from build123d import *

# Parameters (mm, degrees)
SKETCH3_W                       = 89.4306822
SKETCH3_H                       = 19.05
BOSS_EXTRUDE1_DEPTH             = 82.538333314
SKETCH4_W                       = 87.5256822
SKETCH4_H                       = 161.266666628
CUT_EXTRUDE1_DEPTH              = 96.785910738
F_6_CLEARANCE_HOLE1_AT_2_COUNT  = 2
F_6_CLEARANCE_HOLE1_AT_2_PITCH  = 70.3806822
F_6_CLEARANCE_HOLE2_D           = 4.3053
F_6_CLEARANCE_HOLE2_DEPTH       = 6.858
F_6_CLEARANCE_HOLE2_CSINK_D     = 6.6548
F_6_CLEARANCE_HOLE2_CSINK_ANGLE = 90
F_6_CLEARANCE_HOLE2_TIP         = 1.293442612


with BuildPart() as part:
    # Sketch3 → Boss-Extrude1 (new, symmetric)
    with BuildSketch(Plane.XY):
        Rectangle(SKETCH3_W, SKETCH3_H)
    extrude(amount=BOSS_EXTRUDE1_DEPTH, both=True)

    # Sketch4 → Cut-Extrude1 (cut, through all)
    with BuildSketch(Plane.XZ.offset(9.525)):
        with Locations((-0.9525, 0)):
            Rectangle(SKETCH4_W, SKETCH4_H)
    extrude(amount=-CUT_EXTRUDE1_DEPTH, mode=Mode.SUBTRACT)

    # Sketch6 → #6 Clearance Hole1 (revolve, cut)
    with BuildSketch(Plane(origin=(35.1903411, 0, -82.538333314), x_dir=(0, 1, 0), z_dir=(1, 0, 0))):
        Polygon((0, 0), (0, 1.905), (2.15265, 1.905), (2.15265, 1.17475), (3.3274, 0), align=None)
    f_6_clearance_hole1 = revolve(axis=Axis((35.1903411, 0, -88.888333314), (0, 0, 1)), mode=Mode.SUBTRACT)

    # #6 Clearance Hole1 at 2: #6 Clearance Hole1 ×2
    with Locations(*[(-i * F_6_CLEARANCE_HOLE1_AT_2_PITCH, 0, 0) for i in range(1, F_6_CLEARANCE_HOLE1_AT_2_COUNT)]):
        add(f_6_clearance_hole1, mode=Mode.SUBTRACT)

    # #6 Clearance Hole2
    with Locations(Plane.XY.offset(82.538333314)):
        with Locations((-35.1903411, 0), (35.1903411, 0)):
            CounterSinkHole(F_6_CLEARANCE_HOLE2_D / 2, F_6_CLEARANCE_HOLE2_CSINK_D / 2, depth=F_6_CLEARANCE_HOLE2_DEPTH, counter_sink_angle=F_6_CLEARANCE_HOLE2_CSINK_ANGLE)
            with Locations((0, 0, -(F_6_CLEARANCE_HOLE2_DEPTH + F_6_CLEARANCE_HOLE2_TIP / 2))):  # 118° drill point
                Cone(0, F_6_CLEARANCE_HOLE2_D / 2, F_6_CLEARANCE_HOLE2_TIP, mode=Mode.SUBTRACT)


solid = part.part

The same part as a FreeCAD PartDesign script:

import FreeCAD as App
import Part
import Sketcher
Q = App.Units.Quantity

doc = App.newDocument("Part")
body = doc.addObject("PartDesign::Body", "Body")

# Sketch on XY plane
sketch1 = body.newObject("Sketcher::SketchObject", "Sketch")
sketch1.AttachmentSupport = (doc.getObject("XY_Plane"), [""])
sketch1.MapMode = "FlatFace"
sketch1.addGeometry([
    Part.LineSegment(App.Vector(-45, 10, 0), App.Vector(-45, -10, 0)),
    Part.LineSegment(App.Vector(-45, -10, 0), App.Vector(45, -10, 0)),
    Part.LineSegment(App.Vector(45, -10, 0), App.Vector(45, 10, 0)),
    Part.LineSegment(App.Vector(45, 10, 0), App.Vector(-45, 10, 0)),
], False)
sketch1.addConstraint([
    Sketcher.Constraint("Coincident", 0, 2, 1, 1),
    Sketcher.Constraint("Coincident", 1, 2, 2, 1),
    Sketcher.Constraint("Coincident", 2, 2, 3, 1),
    Sketcher.Constraint("Coincident", 3, 2, 0, 1),
    Sketcher.Constraint("Vertical", 0),
    Sketcher.Constraint("Horizontal", 1),
    Sketcher.Constraint("Vertical", 2),
    Sketcher.Constraint("Horizontal", 3),
    Sketcher.Constraint("Symmetric", 0, 2, 2, 2, -1, 1),
    Sketcher.Constraint("DistanceY", 0, 2, 0, 1, Q("0.75 in")),
    Sketcher.Constraint("DistanceX", 1, 1, 1, 2, Q("89.430682 mm")),
])
pad1 = body.newObject("PartDesign::Pad", "Pad")
pad1.Profile = sketch1
pad1.Length = 165.076667
pad1.Midplane = True

# Sketch on XZ plane
sketch2 = body.newObject("Sketcher::SketchObject", "Sketch001")
sketch2.AttachmentSupport = (doc.getObject("XZ_Plane"), [""])
sketch2.MapMode = "FlatFace"
sketch2.AttachmentOffset = App.Placement(App.Vector(0, 0, 0.375 * 25.4), App.Rotation())
sketch2.addGeometry([
    Part.LineSegment(App.Vector(-45, 81, 0), App.Vector(-45, -81, 0)),
    Part.LineSegment(App.Vector(-45, -81, 0), App.Vector(43, -81, 0)),
    Part.LineSegment(App.Vector(43, -81, 0), App.Vector(43, 81, 0)),
    Part.LineSegment(App.Vector(43, 81, 0), App.Vector(-45, 81, 0)),
], False)
sketch2.addConstraint([
    Sketcher.Constraint("Coincident", 0, 2, 1, 1),
    Sketcher.Constraint("Coincident", 1, 2, 2, 1),
    Sketcher.Constraint("Coincident", 2, 2, 3, 1),
    Sketcher.Constraint("Coincident", 3, 2, 0, 1),
    Sketcher.Constraint("Vertical", 0),
    Sketcher.Constraint("Horizontal", 1),
    Sketcher.Constraint("Vertical", 2),
    Sketcher.Constraint("Horizontal", 3),
    Sketcher.Constraint("DistanceX", 1, 1, 1, 2, Q("87.525682 mm")),
    Sketcher.Constraint("DistanceY", 0, 2, 0, 1, Q("161.266667 mm")),
    Sketcher.Constraint("DistanceX", 0, 2, -1, 1, Q("44.715341 mm")),
    Sketcher.Constraint("DistanceY", 0, 2, -1, 1, Q("80.633333 mm")),
])
pocket1 = body.newObject("PartDesign::Pocket", "Pocket")
pocket1.Profile = sketch2
pocket1.Type = "ThroughAll"

# Sketch on YZ plane
sketch3 = body.newObject("Sketcher::SketchObject", "Sketch002")
sketch3.AttachmentSupport = (doc.getObject("YZ_Plane"), [""])
sketch3.MapMode = "FlatFace"
sketch3.AttachmentOffset = App.Placement(App.Vector(0, 0, 35.190341), App.Rotation())
sketch3.addGeometry([
    Part.LineSegment(App.Vector(0, -80.6, 0), App.Vector(0, -82.5, 0)),  # 0
    Part.LineSegment(App.Vector(0, -82.5, 0), App.Vector(3.3, -82.5, 0)),  # 1
    Part.LineSegment(App.Vector(3.3, -82.5, 0), App.Vector(2.2, -81.4, 0)),  # 2
    Part.LineSegment(App.Vector(2.2, -81.4, 0), App.Vector(2.2, -80.6, 0)),  # 3
    Part.LineSegment(App.Vector(2.2, -80.6, 0), App.Vector(0, -80.6, 0)),  # 4
], False)
sketch3.addConstraint([
    Sketcher.Constraint("Coincident", 0, 2, 1, 1),
    Sketcher.Constraint("Coincident", 1, 2, 2, 1),
    Sketcher.Constraint("Coincident", 2, 2, 3, 1),
    Sketcher.Constraint("Coincident", 3, 2, 4, 1),
    Sketcher.Constraint("Coincident", 4, 2, 0, 1),
    Sketcher.Constraint("Vertical", 0),
    Sketcher.Constraint("Horizontal", 1),
    Sketcher.Constraint("Vertical", 3),
    Sketcher.Constraint("Horizontal", 4),
    Sketcher.Constraint("PointOnObject", 0, 2, -2),
    Sketcher.Constraint("Angle", 2, Q("135 deg")),
    Sketcher.Constraint("DistanceX", 1, 1, 1, 2, Q("0.131 in")),
    Sketcher.Constraint("DistanceY", 0, 2, 0, 1, Q("0.075 in")),
    Sketcher.Constraint("DistanceX", 4, 2, 4, 1, Q("2.15265 mm")),
    Sketcher.Constraint("DistanceY", 0, 2, -1, 1, Q("82.538333 mm")),
])
groove = body.newObject("PartDesign::Groove", "Groove")
groove.Profile = sketch3
groove.ReferenceAxis = (sketch3, ["V_Axis"])
groove.Angle = 360
doc.recompute()

linearpattern = body.newObject("PartDesign::LinearPattern", "LinearPattern")
linearpattern.Originals = [groove]
linearpattern.Direction = (doc.getObject("X_Axis"), [""])
linearpattern.Mode = "offset"
linearpattern.Offset = 70.380682
linearpattern.Occurrences = 2
linearpattern.Reversed = True
body.Tip = linearpattern

# Sketch on XY plane
sketch4 = body.newObject("Sketcher::SketchObject", "Sketch003")
sketch4.AttachmentSupport = (doc.getObject("XY_Plane"), [""])
sketch4.MapMode = "FlatFace"
sketch4.AttachmentOffset = App.Placement(App.Vector(0, 0, 82.538333), App.Rotation())
sketch4.addGeometry([
    Part.Circle(App.Vector(-35.2, 0, 0), App.Vector(0, 0, 1), 2.2),
    Part.Circle(App.Vector(35.2, 0, 0), App.Vector(0, 0, 1), 2.2),
], False)
sketch4.addConstraint([
    Sketcher.Constraint("Equal", 0, 1),
    Sketcher.Constraint("Symmetric", 0, 3, 1, 3, -1, 1),
    Sketcher.Constraint("PointOnObject", 0, 3, -1),
    Sketcher.Constraint("Diameter", 0, Q("0.1695 in")),
    Sketcher.Constraint("DistanceX", 0, 3, -1, 1, Q("35.190341 mm")),
])
doc.recompute()
hole = body.newObject("PartDesign::Hole", "Hole")
hole.Profile = sketch4
hole.ThreadType = "None"
hole.Diameter = Q("0.1695 in")
hole.DepthType = "Dimension"
hole.Depth = Q("0.27 in")
hole.DrillPoint = "Angled"
hole.DrillPointAngle = 118
hole.HoleCutType = "Countersink"
hole.HoleCutDiameter = Q("0.262 in")
hole.HoleCutCountersinkAngle = 90

doc.recompute()
